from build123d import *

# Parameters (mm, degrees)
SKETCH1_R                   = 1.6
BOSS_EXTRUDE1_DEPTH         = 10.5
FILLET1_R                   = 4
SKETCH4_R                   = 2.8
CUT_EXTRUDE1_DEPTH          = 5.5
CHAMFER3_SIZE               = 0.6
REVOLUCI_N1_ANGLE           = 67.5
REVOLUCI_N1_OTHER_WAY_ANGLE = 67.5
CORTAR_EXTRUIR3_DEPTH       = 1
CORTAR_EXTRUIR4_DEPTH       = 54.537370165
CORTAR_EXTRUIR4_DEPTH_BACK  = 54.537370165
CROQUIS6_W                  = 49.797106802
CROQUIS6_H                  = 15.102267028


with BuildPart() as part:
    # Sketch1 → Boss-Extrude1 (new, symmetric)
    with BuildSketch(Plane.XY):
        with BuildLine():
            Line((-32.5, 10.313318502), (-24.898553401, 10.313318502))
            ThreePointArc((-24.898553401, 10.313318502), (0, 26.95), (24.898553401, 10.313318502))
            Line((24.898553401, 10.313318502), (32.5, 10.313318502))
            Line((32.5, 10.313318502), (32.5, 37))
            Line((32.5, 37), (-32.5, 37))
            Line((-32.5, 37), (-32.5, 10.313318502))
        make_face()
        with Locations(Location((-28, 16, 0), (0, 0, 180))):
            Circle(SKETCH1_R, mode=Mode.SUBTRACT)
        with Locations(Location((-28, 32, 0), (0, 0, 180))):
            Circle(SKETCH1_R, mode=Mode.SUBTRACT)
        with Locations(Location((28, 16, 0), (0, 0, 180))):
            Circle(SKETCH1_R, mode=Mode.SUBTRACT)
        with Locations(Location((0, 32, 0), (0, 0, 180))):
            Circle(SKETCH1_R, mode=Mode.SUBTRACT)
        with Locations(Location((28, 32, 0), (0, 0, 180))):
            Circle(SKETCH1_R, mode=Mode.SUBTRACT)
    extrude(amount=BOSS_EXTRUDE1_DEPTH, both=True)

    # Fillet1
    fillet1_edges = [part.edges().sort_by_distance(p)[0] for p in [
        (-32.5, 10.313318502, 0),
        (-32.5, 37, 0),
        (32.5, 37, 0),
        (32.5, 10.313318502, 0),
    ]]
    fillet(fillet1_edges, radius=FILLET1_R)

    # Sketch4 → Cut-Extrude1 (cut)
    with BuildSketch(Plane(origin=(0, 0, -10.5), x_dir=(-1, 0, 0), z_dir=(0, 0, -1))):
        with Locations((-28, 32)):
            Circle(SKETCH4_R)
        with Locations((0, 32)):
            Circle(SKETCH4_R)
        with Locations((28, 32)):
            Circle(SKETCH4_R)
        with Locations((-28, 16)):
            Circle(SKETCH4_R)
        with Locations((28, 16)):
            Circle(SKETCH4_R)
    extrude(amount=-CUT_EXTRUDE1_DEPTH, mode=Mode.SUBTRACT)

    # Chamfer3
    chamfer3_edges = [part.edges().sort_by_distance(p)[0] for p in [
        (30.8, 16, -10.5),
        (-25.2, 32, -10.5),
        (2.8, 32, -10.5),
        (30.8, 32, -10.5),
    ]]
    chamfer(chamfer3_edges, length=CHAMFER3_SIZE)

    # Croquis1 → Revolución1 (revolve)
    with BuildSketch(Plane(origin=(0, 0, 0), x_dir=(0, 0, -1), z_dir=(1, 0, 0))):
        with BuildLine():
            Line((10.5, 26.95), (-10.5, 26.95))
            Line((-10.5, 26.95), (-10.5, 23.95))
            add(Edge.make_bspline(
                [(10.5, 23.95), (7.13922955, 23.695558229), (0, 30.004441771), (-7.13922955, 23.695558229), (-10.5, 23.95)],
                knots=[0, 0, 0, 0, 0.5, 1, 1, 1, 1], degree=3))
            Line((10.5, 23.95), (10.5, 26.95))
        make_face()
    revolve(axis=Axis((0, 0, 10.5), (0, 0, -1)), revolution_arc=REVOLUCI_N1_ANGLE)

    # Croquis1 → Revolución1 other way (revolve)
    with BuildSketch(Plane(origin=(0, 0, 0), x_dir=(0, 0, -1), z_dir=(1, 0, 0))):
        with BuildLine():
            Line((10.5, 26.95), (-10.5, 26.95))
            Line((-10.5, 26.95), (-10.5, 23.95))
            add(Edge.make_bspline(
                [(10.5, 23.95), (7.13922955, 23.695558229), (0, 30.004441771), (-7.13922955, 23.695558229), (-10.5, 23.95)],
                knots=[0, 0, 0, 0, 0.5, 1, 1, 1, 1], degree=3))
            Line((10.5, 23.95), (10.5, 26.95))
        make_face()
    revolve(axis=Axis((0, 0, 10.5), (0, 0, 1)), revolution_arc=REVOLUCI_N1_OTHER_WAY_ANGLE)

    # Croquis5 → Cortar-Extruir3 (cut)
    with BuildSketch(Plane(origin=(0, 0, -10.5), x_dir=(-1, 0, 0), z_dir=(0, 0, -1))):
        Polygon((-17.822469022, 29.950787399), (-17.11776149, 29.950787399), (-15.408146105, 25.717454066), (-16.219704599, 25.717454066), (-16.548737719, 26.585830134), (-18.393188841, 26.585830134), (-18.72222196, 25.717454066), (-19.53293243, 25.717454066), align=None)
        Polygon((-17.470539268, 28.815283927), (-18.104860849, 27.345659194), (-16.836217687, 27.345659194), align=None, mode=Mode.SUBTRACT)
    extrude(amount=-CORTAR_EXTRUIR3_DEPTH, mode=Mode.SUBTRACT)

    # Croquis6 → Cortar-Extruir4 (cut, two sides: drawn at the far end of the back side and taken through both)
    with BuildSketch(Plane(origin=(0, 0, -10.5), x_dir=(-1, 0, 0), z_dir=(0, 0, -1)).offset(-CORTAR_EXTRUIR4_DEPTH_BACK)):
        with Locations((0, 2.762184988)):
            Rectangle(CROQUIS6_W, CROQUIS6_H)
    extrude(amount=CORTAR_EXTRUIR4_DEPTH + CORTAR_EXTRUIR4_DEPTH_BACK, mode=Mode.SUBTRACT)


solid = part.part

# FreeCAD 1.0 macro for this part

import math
import FreeCAD as App
import Part
import Sketcher
from FreeCAD import Vector


def edges_at(feature, points):
    """Names of the edges that pass closest to the given points."""
    edges = feature.Shape.Edges
    near = lambda p: min(range(len(edges)), key=lambda i: edges[i].distToShape(Part.Vertex(*p))[0])
    return sorted({f"Edge{near(p) + 1}" for p in points})


def add_polygon(sketch, points):
    """Adds a closed chain of lines whose ends are joined by coincident constraints."""
    first, n = sketch.GeometryCount, len(points)
    for a, b in zip(points, points[1:] + points[:1]):
        sketch.addGeometry(Part.LineSegment(App.Vector(*a, 0), App.Vector(*b, 0)), False)
    for i in range(n):
        sketch.addConstraint(Sketcher.Constraint("Coincident", first + i, 2, first + (i + 1) % n, 1))

doc = App.newDocument("Part")
body = doc.addObject("PartDesign::Body", "Body")

sketch1 = body.newObject("Sketcher::SketchObject", "Sketch")
sketch1.AttachmentSupport = (doc.getObject("XY_Plane"), [""])
sketch1.MapMode = "FlatFace"
sketch1.addGeometry([
    Part.LineSegment(Vector(-32.5, 10.3, 0), Vector(-24.9, 10.3, 0)),
    Part.ArcOfCircle(Part.Circle(Vector(0, 0, 0), Vector(0, 0, 1), 26.9), math.radians(22), math.radians(158)),
    Part.LineSegment(Vector(24.9, 10.3, 0), Vector(32.5, 10.3, 0)),
    Part.LineSegment(Vector(32.5, 10.3, 0), Vector(32.5, 37, 0)),
    Part.LineSegment(Vector(32.5, 37, 0), Vector(-32.5, 37, 0)),
    Part.LineSegment(Vector(-32.5, 37, 0), Vector(-32.5, 10.3, 0)),
    Part.Circle(Vector(-28, 16, 0), Vector(0, 0, 1), 1.6),
    Part.Circle(Vector(28, 16, 0), Vector(0, 0, 1), 1.6),
    Part.Circle(Vector(-28, 32, 0), Vector(0, 0, 1), 1.6),
    Part.Circle(Vector(0, 32, 0), Vector(0, 0, 1), 1.6),
    Part.Circle(Vector(28, 32, 0), Vector(0, 0, 1), 1.6),
], False)
sketch1.addConstraint([
    Sketcher.Constraint("Coincident", 0, 2, 1, 2),
    Sketcher.Constraint("Coincident", 1, 1, 2, 1),
    Sketcher.Constraint("Coincident", 2, 2, 3, 1),
    Sketcher.Constraint("Coincident", 3, 2, 4, 1),
    Sketcher.Constraint("Coincident", 4, 2, 5, 1),
    Sketcher.Constraint("Coincident", 5, 2, 0, 1),
    Sketcher.Constraint("Horizontal", 0),
    Sketcher.Constraint("Horizontal", 2),
    Sketcher.Constraint("Vertical", 3),
    Sketcher.Constraint("Horizontal", 4),
    Sketcher.Constraint("Vertical", 5),
    Sketcher.Constraint("Coincident", 1, 3, -1, 1),
    Sketcher.Constraint("Equal", 6, 7),
    Sketcher.Constraint("Equal", 7, 8),
    Sketcher.Constraint("Equal", 8, 9),
    Sketcher.Constraint("Equal", 9, 10),
    Sketcher.Constraint("Symmetric", 6, 3, 7, 3, -2),
    Sketcher.Constraint("Symmetric", 8, 3, 10, 3, -2),
    Sketcher.Constraint("Symmetric", 2, 2, 5, 2, -2),
    Sketcher.Constraint("PointOnObject", 9, 3, -2),
    Sketcher.Constraint("Horizontal", 8, 3, 9, 3),
    Sketcher.Constraint("Vertical", 6, 3, 8, 3),
    Sketcher.Constraint("Diameter", 6, 3.2),
    Sketcher.Constraint("DistanceX", 4, 2, 4, 1, 65.0),
    Sketcher.Constraint("Radius", 1, 26.95),
    Sketcher.Constraint("DistanceX", 6, 3, -1, 1, 28.0),
    Sketcher.Constraint("DistanceY", -1, 1, 6, 3, 16.0),
    Sketcher.Constraint("DistanceY", -1, 1, 8, 3, 32.0),
    Sketcher.Constraint("DistanceY", -1, 1, 3, 2, 37.0),
    Sketcher.Constraint("DistanceY", 3, 1, 3, 2, 26.686681),
])
pad1 = body.newObject("PartDesign::Pad", "Pad")
pad1.Profile = sketch1
pad1.Length = 21
pad1.Midplane = True
doc.recompute()

fillet = body.newObject("PartDesign::Fillet", "Fillet")
fillet.Base = (pad1, edges_at(pad1, [
    (-32.5, 10.313, 0),
    (-32.5, 37, 0),
    (32.5, 37, 0),
    (32.5, 10.313, 0),
]))
fillet.Radius = 4

sketch2 = body.newObject("Sketcher::SketchObject", "Sketch001")
sketch2.AttachmentSupport = (doc.getObject("XY_Plane"), [""])
sketch2.MapMode = "FlatFace"
sketch2.AttachmentOffset = App.Placement(Vector(0, 0, -10.5), App.Rotation())
sketch2.addGeometry([
    Part.Circle(Vector(28, 32, 0), Vector(0, 0, 1), 2.8),
    Part.Circle(Vector(0, 32, 0), Vector(0, 0, 1), 2.8),
    Part.Circle(Vector(-28, 32, 0), Vector(0, 0, 1), 2.8),
    Part.Circle(Vector(28, 16, 0), Vector(0, 0, 1), 2.8),
    Part.Circle(Vector(-28, 16, 0), Vector(0, 0, 1), 2.8),
], False)
sketch2.addConstraint([
    Sketcher.Constraint("Equal", 0, 1),
    Sketcher.Constraint("Equal", 1, 2),
    Sketcher.Constraint("Equal", 2, 3),
    Sketcher.Constraint("Equal", 3, 4),
    Sketcher.Constraint("Symmetric", 0, 3, 2, 3, -2),
    Sketcher.Constraint("Symmetric", 3, 3, 4, 3, -2),
    Sketcher.Constraint("PointOnObject", 1, 3, -2),
    Sketcher.Constraint("Horizontal", 0, 3, 1, 3),
    Sketcher.Constraint("Vertical", 0, 3, 3, 3),
    Sketcher.Constraint("Diameter", 0, 5.6),
    Sketcher.Constraint("DistanceX", -1, 1, 0, 3, 28.0),
    Sketcher.Constraint("DistanceY", -1, 1, 0, 3, 32.0),
    Sketcher.Constraint("DistanceY", -1, 1, 3, 3, 16.0),
])
pocket1 = body.newObject("PartDesign::Pocket", "Pocket")
pocket1.Profile = sketch2
pocket1.Length = 5.5
pocket1.Reversed = True
doc.recompute()

chamfer = body.newObject("PartDesign::Chamfer", "Chamfer")
chamfer.Base = (pocket1, edges_at(pocket1, [
    (30.8, 16, -10.5),
    (-25.2, 32, -10.5),
    (2.8, 32, -10.5),
    (30.8, 32, -10.5),
]))
chamfer.Size = 0.6

sketch3 = body.newObject("Sketcher::SketchObject", "Sketch002")
sketch3.AttachmentSupport = (doc.getObject("YZ_Plane"), [""])
sketch3.MapMode = "FlatFace"
sketch3.addGeometry([
    Part.LineSegment(Vector(26.95, -10.5, 0), Vector(26.95, 10.5, 0)),
    Part.LineSegment(Vector(26.95, 10.5, 0), Vector(23.95, 10.5, 0)),
    Part.BSplineCurve([Vector(23.95, -10.5, 0), Vector(23.695558, -7.13923, 0), Vector(30.004442, 0, 0), Vector(23.695558, 7.13923, 0), Vector(23.95, 10.5, 0)], [4, 1, 4], [0, 0.5, 1], False, 3, [1, 1, 1, 1, 1], False),
    Part.LineSegment(Vector(23.95, -10.5, 0), Vector(26.95, -10.5, 0)),
], False)
sketch3.addConstraint([
    Sketcher.Constraint("Block", 2),
    Sketcher.Constraint("Coincident", 0, 2, 1, 1),
    Sketcher.Constraint("Coincident", 1, 2, 2, 2),
    Sketcher.Constraint("Coincident", 2, 1, 3, 1),
    Sketcher.Constraint("Coincident", 3, 2, 0, 1),
    Sketcher.Constraint("Vertical", 0),
    Sketcher.Constraint("Horizontal", 1),
    Sketcher.Constraint("Horizontal", 3),
    Sketcher.Constraint("DistanceX", 1, 2, 1, 1, 3.0),
])
revolution = body.newObject("PartDesign::Revolution", "Revolution")
revolution.Profile = sketch3
revolution.ReferenceAxis = (sketch3, ["V_Axis"])
revolution.Angle = 67.5
revolution.Reversed = True

sketch4 = body.newObject("Sketcher::SketchObject", "Sketch003")
sketch4.AttachmentSupport = (doc.getObject("YZ_Plane"), [""])
sketch4.MapMode = "FlatFace"
sketch4.addGeometry([
    Part.LineSegment(Vector(26.95, -10.5, 0), Vector(26.95, 10.5, 0)),
    Part.LineSegment(Vector(26.95, 10.5, 0), Vector(23.95, 10.5, 0)),
    Part.BSplineCurve([Vector(23.95, -10.5, 0), Vector(23.695558, -7.13923, 0), Vector(30.004442, 0, 0), Vector(23.695558, 7.13923, 0), Vector(23.95, 10.5, 0)], [4, 1, 4], [0, 0.5, 1], False, 3, [1, 1, 1, 1, 1], False),
    Part.LineSegment(Vector(23.95, -10.5, 0), Vector(26.95, -10.5, 0)),
], False)
sketch4.addConstraint([
    Sketcher.Constraint("Block", 2),
    Sketcher.Constraint("Coincident", 0, 2, 1, 1),
    Sketcher.Constraint("Coincident", 1, 2, 2, 2),
    Sketcher.Constraint("Coincident", 2, 1, 3, 1),
    Sketcher.Constraint("Coincident", 3, 2, 0, 1),
    Sketcher.Constraint("Vertical", 0),
    Sketcher.Constraint("Horizontal", 1),
    Sketcher.Constraint("Horizontal", 3),
    Sketcher.Constraint("DistanceX", 1, 2, 1, 1, 3.0),
])
revolution2 = body.newObject("PartDesign::Revolution", "Revolution001")
revolution2.Profile = sketch4
revolution2.ReferenceAxis = (sketch4, ["V_Axis"])
revolution2.Angle = 67.5

sketch5 = body.newObject("Sketcher::SketchObject", "Sketch004")
sketch5.AttachmentSupport = (doc.getObject("XY_Plane"), [""])
sketch5.MapMode = "FlatFace"
sketch5.AttachmentOffset = App.Placement(Vector(0, 0, -10.5), App.Rotation())
add_polygon(sketch5, [(17.1, 30), (17.8, 30), (19.5, 25.7), (18.7, 25.7), (18.4, 26.6), (16.5, 26.6), (16.2, 25.7), (15.4, 25.7)])
add_polygon(sketch5, [(17.5, 28.8), (16.8, 27.3), (18.1, 27.3)])
sketch5.addConstraint([
    Sketcher.Constraint("Horizontal", 0),
    Sketcher.Constraint("Horizontal", 2),
    Sketcher.Constraint("Horizontal", 4),
    Sketcher.Constraint("Horizontal", 6),
    Sketcher.Constraint("Horizontal", 9),
    Sketcher.Constraint("Horizontal", 2, 2, 5, 2),
    Sketcher.Constraint("Equal", 3, 5),
    Sketcher.Constraint("Equal", 8, 10),
    Sketcher.Constraint("DistanceX", 2, 2, 2, 1, 0.81071),
    Sketcher.Constraint("DistanceX", 4, 2, 4, 1, 1.844451),
    Sketcher.Constraint("DistanceX", 6, 2, 6, 1, 0.811558),
    Sketcher.Constraint("DistanceX", 4, 2, 10, 2, 0.921802),
    Sketcher.Constraint("Distance", 1, 4.565829),
    Sketcher.Constraint("Distance", 7, 4.565512),
    Sketcher.Constraint("DistanceX", 0, 1, 0, 2, 0.704708),
    Sketcher.Constraint("DistanceX", 9, 1, 9, 2, 1.268643),
    Sketcher.Constraint("DistanceX", -1, 1, 0, 2, 17.822469),
    Sketcher.Constraint("DistanceX", -1, 1, 2, 2, 18.722222),
    Sketcher.Constraint("DistanceY", -1, 1, 3, 2, 26.58583),
    Sketcher.Constraint("DistanceY", -1, 1, 8, 2, 27.345659),
    Sketcher.Constraint("Distance", 3, 0.928623),
    Sketcher.Constraint("Distance", 8, 1.600675),
])
pocket2 = body.newObject("PartDesign::Pocket", "Pocket001")
pocket2.Profile = sketch5
pocket2.Length = 1
pocket2.Reversed = True

sketch6 = body.newObject("Sketcher::SketchObject", "Sketch005")
sketch6.AttachmentSupport = (doc.getObject("XY_Plane"), [""])
sketch6.MapMode = "FlatFace"
sketch6.AttachmentOffset = App.Placement(Vector(0, 0, -10.5), App.Rotation())
add_polygon(sketch6, [(25, 10), (25, -5), (-25, -5), (-25, 10)])
sketch6.addConstraint([
    Sketcher.Constraint("Vertical", 0),
    Sketcher.Constraint("Horizontal", 1),
    Sketcher.Constraint("Vertical", 2),
    Sketcher.Constraint("Horizontal", 3),
    Sketcher.Constraint("DistanceX", 1, 2, 1, 1, 49.797107),
    Sketcher.Constraint("DistanceY", 0, 2, 0, 1, 15.102267),
    Sketcher.Constraint("DistanceY", 0, 2, -1, 1, 4.788949),
    Sketcher.Constraint("DistanceX", -1, 1, 0, 2, 24.898553),
])
pocket3 = body.newObject("PartDesign::Pocket", "Pocket002")
pocket3.Profile = sketch6
pocket3.Type = "ThroughAll"
pocket3.Midplane = True

doc.recompute()
